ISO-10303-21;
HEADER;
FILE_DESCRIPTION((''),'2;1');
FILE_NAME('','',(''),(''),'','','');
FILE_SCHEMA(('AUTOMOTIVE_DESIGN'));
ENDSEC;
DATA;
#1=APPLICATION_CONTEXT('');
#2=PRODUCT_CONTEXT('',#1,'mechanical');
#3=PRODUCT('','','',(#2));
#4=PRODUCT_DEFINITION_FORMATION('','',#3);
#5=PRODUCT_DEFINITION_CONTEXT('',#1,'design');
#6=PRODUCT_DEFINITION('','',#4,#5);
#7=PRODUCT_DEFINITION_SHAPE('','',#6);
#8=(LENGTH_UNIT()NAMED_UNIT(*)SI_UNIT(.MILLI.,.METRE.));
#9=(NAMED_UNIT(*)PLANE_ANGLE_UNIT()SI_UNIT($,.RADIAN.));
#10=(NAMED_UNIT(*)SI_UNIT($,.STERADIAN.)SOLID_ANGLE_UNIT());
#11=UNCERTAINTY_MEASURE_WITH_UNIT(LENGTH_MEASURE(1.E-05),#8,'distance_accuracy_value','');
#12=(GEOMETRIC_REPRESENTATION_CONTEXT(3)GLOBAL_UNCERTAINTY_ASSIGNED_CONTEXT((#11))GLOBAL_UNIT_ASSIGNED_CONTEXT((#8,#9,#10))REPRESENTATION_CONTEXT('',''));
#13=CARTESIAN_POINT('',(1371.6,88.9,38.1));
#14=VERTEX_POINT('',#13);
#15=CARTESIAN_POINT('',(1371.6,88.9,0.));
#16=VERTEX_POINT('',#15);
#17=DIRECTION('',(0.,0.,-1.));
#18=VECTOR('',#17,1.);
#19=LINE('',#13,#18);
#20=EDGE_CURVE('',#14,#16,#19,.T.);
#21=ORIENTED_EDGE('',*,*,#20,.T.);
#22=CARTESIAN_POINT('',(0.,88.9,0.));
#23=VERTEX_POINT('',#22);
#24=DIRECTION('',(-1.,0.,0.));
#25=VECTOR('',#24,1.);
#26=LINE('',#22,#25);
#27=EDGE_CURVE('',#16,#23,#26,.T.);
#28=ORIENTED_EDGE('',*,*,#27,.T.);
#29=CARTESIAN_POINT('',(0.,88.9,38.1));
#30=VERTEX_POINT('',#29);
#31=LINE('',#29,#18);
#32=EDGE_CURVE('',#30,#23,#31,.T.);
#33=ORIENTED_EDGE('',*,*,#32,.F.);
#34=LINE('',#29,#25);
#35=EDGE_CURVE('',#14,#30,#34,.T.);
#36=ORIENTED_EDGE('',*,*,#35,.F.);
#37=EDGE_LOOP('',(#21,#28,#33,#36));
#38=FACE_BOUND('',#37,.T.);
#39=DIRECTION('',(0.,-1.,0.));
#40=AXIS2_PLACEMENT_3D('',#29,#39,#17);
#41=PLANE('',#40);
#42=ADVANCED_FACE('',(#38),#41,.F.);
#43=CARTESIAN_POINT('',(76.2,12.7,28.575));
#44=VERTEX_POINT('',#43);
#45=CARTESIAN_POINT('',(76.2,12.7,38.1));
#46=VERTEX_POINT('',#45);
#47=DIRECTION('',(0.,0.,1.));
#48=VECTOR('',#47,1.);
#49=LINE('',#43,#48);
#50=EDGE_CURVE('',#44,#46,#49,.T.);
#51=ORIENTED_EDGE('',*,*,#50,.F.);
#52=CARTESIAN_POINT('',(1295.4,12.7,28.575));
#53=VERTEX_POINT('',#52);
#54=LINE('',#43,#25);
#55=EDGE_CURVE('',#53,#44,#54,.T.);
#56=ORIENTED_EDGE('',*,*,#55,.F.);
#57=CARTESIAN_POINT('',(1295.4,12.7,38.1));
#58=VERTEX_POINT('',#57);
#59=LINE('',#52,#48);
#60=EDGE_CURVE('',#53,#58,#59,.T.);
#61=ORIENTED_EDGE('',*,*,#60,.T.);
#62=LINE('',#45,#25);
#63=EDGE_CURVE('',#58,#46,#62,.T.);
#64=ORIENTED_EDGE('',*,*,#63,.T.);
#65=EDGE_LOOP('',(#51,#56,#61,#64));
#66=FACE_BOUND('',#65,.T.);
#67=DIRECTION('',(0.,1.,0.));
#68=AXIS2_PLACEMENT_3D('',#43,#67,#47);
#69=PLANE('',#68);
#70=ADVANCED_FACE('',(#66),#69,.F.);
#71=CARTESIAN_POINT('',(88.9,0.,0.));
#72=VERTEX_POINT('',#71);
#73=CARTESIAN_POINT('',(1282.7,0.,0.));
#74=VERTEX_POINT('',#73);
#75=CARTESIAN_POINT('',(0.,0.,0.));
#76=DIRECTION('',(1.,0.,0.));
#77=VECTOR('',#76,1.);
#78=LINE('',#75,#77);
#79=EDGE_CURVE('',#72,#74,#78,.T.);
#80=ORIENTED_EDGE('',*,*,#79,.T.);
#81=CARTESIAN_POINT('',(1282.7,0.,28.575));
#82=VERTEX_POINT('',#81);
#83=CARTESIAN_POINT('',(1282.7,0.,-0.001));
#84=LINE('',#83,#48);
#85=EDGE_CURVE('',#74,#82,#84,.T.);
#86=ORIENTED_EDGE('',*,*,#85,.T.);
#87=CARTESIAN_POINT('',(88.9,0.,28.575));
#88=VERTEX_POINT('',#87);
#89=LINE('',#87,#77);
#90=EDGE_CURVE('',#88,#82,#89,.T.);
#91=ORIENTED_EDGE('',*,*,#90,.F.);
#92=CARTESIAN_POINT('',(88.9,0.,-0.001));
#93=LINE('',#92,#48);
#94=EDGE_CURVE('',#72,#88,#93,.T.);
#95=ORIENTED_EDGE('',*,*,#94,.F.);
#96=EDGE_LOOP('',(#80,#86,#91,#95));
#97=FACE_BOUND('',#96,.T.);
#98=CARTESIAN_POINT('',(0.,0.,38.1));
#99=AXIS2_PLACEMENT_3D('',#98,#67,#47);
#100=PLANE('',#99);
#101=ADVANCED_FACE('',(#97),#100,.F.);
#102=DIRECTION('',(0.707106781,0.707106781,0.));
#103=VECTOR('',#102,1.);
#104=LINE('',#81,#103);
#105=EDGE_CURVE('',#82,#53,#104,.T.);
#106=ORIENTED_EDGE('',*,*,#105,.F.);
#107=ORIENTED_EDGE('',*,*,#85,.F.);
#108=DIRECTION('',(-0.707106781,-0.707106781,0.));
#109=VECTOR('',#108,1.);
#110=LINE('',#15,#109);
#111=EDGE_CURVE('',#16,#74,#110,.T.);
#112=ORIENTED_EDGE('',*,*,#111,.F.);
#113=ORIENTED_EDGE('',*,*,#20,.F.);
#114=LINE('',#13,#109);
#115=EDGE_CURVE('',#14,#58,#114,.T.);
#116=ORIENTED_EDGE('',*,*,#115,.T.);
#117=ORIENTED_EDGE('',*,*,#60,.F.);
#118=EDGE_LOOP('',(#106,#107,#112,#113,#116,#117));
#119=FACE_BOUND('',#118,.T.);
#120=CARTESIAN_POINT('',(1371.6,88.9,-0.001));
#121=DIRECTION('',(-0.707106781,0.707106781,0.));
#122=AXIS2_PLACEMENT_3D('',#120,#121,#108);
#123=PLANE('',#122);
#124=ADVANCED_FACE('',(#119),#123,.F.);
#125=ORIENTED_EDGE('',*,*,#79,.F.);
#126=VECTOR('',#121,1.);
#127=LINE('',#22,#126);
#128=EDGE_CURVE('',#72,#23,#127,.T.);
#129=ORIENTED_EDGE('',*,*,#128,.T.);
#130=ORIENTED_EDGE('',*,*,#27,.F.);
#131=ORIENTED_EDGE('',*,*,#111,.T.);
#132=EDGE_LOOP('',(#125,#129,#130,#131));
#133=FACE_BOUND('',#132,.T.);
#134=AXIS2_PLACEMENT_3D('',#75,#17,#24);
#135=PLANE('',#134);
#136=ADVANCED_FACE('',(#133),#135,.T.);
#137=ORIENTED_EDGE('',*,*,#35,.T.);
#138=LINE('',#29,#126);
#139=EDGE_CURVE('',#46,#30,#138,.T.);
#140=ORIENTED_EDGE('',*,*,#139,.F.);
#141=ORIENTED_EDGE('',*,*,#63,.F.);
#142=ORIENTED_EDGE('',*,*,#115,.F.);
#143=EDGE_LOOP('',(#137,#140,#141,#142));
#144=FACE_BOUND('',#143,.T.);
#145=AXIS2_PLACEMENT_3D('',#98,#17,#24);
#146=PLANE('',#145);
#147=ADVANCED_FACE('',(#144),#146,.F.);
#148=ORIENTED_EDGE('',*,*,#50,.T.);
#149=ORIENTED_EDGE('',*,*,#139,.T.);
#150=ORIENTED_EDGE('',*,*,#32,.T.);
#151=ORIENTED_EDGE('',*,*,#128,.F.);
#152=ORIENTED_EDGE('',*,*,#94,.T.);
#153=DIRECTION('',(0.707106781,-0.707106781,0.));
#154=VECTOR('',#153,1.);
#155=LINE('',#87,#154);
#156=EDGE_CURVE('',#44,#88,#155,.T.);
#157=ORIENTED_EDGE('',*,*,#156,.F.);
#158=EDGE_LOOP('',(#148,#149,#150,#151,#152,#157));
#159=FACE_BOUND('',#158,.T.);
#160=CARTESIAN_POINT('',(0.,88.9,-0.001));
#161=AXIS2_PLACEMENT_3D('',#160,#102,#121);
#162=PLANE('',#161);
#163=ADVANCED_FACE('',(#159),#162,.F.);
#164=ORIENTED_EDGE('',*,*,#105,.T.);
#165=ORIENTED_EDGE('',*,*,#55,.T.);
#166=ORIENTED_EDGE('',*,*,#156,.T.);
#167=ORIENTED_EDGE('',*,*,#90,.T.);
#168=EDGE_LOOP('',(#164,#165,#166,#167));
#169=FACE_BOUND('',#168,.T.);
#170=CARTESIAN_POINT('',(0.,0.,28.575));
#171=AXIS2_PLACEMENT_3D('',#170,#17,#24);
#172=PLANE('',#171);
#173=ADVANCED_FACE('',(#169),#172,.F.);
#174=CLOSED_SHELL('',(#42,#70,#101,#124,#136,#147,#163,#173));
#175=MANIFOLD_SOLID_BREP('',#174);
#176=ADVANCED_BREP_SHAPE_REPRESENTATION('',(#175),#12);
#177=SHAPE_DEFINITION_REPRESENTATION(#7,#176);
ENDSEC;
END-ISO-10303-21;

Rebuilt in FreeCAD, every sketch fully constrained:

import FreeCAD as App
import Part
import Sketcher
Q = App.Units.Quantity

doc = App.newDocument("Part")
body = doc.addObject("PartDesign::Body", "Body")

# Sketch on XY plane
sketch1 = doc.addObject("Sketcher::SketchObject", "Sketch")
body.addObject(sketch1)
sketch1.AttachmentSupport = (doc.XY_Plane, [""])
sketch1.MapMode = "FlatFace"
sketch1.addGeometry(Part.LineSegment(App.Vector(0, 89, 0), App.Vector(0, 0, 0)), False)
sketch1.addGeometry(Part.LineSegment(App.Vector(0, 0, 0), App.Vector(1372, 0, 0)), False)
sketch1.addGeometry(Part.LineSegment(App.Vector(1372, 0, 0), App.Vector(1372, 89, 0)), False)
sketch1.addGeometry(Part.LineSegment(App.Vector(1372, 89, 0), App.Vector(0, 89, 0)), False)
sketch1.addConstraint(Sketcher.Constraint("Coincident", 0, 2, 1, 1))
sketch1.addConstraint(Sketcher.Constraint("Coincident", 1, 2, 2, 1))
sketch1.addConstraint(Sketcher.Constraint("Coincident", 2, 2, 3, 1))
sketch1.addConstraint(Sketcher.Constraint("Coincident", 3, 2, 0, 1))
sketch1.addConstraint(Sketcher.Constraint("Vertical", 0))
sketch1.addConstraint(Sketcher.Constraint("Horizontal", 1))
sketch1.addConstraint(Sketcher.Constraint("Vertical", 2))
sketch1.addConstraint(Sketcher.Constraint("Horizontal", 3))
sketch1.addConstraint(Sketcher.Constraint("Coincident", 0, 2, -1, 1))
sketch1.addConstraint(Sketcher.Constraint("DistanceX", 1, 1, 1, 2, Q("54 in")))
sketch1.addConstraint(Sketcher.Constraint("DistanceY", 0, 2, 0, 1, Q("3.5 in")))
pad1 = doc.addObject("PartDesign::Pad", "Pad")
body.addObject(pad1)
pad1.Profile = sketch1
pad1.Length = Q("1.5 in")

# Sketch on XY plane
sketch2 = doc.addObject("Sketcher::SketchObject", "Sketch001")
body.addObject(sketch2)
sketch2.AttachmentSupport = (doc.XY_Plane, [""])
sketch2.MapMode = "FlatFace"
sketch2.AttachmentOffset = App.Placement(App.Vector(0, 0, 1.5 * 25.4), App.Rotation())
sketch2.addGeometry(Part.LineSegment(App.Vector(89, 0, 0), App.Vector(0, 89, 0)), False)
sketch2.addGeometry(Part.LineSegment(App.Vector(0, 89, 0), App.Vector(0, 0, 0)), False)
sketch2.addGeometry(Part.LineSegment(App.Vector(0, 0, 0), App.Vector(89, 0, 0)), False)
sketch2.addConstraint(Sketcher.Constraint("Coincident", 0, 2, 1, 1))
sketch2.addConstraint(Sketcher.Constraint("Coincident", 1, 2, 2, 1))
sketch2.addConstraint(Sketcher.Constraint("Coincident", 2, 2, 0, 1))
sketch2.addConstraint(Sketcher.Constraint("Vertical", 1))
sketch2.addConstraint(Sketcher.Constraint("Horizontal", 2))
sketch2.addConstraint(Sketcher.Constraint("Coincident", 1, 2, -1, 1))
sketch2.addConstraint(Sketcher.Constraint("Equal", 2, 1))
sketch2.addConstraint(Sketcher.Constraint("DistanceX", 2, 1, 2, 2, Q("3.5 in")))
pocket1 = doc.addObject("PartDesign::Pocket", "Pocket")
body.addObject(pocket1)
pocket1.Profile = sketch2
pocket1.Type = "UpToFirst"

# Sketch on XY plane
sketch3 = doc.addObject("Sketcher::SketchObject", "Sketch002")
body.addObject(sketch3)
sketch3.AttachmentSupport = (doc.XY_Plane, [""])
sketch3.MapMode = "FlatFace"
sketch3.AttachmentOffset = App.Placement(App.Vector(0, 0, 1.5 * 25.4), App.Rotation())
sketch3.addGeometry(Part.LineSegment(App.Vector(1372, 89, 0), App.Vector(1283, 0, 0)), False)
sketch3.addGeometry(Part.LineSegment(App.Vector(1283, 0, 0), App.Vector(1372, 0, 0)), False)
sketch3.addGeometry(Part.LineSegment(App.Vector(1372, 0, 0), App.Vector(1372, 89, 0)), False)
sketch3.addConstraint(Sketcher.Constraint("Coincident", 0, 2, 1, 1))
sketch3.addConstraint(Sketcher.Constraint("Coincident", 1, 2, 2, 1))
sketch3.addConstraint(Sketcher.Constraint("Coincident", 2, 2, 0, 1))
sketch3.addConstraint(Sketcher.Constraint("Horizontal", 1))
sketch3.addConstraint(Sketcher.Constraint("Vertical", 2))
sketch3.addConstraint(Sketcher.Constraint("PointOnObject", 0, 2, -1))
sketch3.addConstraint(Sketcher.Constraint("Equal", 1, 2))
sketch3.addConstraint(Sketcher.Constraint("DistanceX", 1, 1, 1, 2, Q("3.5 in")))
sketch3.addConstraint(Sketcher.Constraint("DistanceX", -1, 1, 1, 2, Q("54 in")))
pocket2 = doc.addObject("PartDesign::Pocket", "Pocket001")
body.addObject(pocket2)
pocket2.Profile = sketch3
pocket2.Type = "UpToFirst"

# Sketch on XY plane
sketch4 = doc.addObject("Sketcher::SketchObject", "Sketch003")
body.addObject(sketch4)
sketch4.AttachmentSupport = (doc.XY_Plane, [""])
sketch4.MapMode = "FlatFace"
sketch4.AttachmentOffset = App.Placement(App.Vector(0, 0, 1.5 * 25.4), App.Rotation())
sketch4.addGeometry(Part.LineSegment(App.Vector(88.9, 0, 0), App.Vector(1282.7, 0, 0)), False)
sketch4.addGeometry(Part.LineSegment(App.Vector(1282.7, 0, 0), App.Vector(1295.4, 12.7, 0)), False)
sketch4.addGeometry(Part.LineSegment(App.Vector(1295.4, 12.7, 0), App.Vector(76.2, 12.7, 0)), False)
sketch4.addGeometry(Part.LineSegment(App.Vector(76.2, 12.7, 0), App.Vector(88.9, 0, 0)), False)
sketch4.addConstraint(Sketcher.Constraint("Coincident", 0, 2, 1, 1))
sketch4.addConstraint(Sketcher.Constraint("Coincident", 1, 2, 2, 1))
sketch4.addConstraint(Sketcher.Constraint("Coincident", 2, 2, 3, 1))
sketch4.addConstraint(Sketcher.Constraint("Coincident", 3, 2, 0, 1))
sketch4.addConstraint(Sketcher.Constraint("Horizontal", 0))
sketch4.addConstraint(Sketcher.Constraint("Horizontal", 2))
sketch4.addConstraint(Sketcher.Constraint("PointOnObject", 0, 2, -1))
sketch4.addConstraint(Sketcher.Constraint("Perpendicular", 1, 3))
sketch4.addConstraint(Sketcher.Constraint("Equal", 1, 3))
sketch4.addConstraint(Sketcher.Constraint("DistanceX", 0, 1, 0, 2, Q("47 in")))
sketch4.addConstraint(Sketcher.Constraint("DistanceX", 2, 2, 2, 1, Q("48 in")))
sketch4.addConstraint(Sketcher.Constraint("DistanceX", -1, 1, 1, 2, Q("51 in")))
pocket3 = doc.addObject("PartDesign::Pocket", "Pocket002")
body.addObject(pocket3)
pocket3.Profile = sketch4
pocket3.Length = Q("0.375 in")

doc.recompute()
